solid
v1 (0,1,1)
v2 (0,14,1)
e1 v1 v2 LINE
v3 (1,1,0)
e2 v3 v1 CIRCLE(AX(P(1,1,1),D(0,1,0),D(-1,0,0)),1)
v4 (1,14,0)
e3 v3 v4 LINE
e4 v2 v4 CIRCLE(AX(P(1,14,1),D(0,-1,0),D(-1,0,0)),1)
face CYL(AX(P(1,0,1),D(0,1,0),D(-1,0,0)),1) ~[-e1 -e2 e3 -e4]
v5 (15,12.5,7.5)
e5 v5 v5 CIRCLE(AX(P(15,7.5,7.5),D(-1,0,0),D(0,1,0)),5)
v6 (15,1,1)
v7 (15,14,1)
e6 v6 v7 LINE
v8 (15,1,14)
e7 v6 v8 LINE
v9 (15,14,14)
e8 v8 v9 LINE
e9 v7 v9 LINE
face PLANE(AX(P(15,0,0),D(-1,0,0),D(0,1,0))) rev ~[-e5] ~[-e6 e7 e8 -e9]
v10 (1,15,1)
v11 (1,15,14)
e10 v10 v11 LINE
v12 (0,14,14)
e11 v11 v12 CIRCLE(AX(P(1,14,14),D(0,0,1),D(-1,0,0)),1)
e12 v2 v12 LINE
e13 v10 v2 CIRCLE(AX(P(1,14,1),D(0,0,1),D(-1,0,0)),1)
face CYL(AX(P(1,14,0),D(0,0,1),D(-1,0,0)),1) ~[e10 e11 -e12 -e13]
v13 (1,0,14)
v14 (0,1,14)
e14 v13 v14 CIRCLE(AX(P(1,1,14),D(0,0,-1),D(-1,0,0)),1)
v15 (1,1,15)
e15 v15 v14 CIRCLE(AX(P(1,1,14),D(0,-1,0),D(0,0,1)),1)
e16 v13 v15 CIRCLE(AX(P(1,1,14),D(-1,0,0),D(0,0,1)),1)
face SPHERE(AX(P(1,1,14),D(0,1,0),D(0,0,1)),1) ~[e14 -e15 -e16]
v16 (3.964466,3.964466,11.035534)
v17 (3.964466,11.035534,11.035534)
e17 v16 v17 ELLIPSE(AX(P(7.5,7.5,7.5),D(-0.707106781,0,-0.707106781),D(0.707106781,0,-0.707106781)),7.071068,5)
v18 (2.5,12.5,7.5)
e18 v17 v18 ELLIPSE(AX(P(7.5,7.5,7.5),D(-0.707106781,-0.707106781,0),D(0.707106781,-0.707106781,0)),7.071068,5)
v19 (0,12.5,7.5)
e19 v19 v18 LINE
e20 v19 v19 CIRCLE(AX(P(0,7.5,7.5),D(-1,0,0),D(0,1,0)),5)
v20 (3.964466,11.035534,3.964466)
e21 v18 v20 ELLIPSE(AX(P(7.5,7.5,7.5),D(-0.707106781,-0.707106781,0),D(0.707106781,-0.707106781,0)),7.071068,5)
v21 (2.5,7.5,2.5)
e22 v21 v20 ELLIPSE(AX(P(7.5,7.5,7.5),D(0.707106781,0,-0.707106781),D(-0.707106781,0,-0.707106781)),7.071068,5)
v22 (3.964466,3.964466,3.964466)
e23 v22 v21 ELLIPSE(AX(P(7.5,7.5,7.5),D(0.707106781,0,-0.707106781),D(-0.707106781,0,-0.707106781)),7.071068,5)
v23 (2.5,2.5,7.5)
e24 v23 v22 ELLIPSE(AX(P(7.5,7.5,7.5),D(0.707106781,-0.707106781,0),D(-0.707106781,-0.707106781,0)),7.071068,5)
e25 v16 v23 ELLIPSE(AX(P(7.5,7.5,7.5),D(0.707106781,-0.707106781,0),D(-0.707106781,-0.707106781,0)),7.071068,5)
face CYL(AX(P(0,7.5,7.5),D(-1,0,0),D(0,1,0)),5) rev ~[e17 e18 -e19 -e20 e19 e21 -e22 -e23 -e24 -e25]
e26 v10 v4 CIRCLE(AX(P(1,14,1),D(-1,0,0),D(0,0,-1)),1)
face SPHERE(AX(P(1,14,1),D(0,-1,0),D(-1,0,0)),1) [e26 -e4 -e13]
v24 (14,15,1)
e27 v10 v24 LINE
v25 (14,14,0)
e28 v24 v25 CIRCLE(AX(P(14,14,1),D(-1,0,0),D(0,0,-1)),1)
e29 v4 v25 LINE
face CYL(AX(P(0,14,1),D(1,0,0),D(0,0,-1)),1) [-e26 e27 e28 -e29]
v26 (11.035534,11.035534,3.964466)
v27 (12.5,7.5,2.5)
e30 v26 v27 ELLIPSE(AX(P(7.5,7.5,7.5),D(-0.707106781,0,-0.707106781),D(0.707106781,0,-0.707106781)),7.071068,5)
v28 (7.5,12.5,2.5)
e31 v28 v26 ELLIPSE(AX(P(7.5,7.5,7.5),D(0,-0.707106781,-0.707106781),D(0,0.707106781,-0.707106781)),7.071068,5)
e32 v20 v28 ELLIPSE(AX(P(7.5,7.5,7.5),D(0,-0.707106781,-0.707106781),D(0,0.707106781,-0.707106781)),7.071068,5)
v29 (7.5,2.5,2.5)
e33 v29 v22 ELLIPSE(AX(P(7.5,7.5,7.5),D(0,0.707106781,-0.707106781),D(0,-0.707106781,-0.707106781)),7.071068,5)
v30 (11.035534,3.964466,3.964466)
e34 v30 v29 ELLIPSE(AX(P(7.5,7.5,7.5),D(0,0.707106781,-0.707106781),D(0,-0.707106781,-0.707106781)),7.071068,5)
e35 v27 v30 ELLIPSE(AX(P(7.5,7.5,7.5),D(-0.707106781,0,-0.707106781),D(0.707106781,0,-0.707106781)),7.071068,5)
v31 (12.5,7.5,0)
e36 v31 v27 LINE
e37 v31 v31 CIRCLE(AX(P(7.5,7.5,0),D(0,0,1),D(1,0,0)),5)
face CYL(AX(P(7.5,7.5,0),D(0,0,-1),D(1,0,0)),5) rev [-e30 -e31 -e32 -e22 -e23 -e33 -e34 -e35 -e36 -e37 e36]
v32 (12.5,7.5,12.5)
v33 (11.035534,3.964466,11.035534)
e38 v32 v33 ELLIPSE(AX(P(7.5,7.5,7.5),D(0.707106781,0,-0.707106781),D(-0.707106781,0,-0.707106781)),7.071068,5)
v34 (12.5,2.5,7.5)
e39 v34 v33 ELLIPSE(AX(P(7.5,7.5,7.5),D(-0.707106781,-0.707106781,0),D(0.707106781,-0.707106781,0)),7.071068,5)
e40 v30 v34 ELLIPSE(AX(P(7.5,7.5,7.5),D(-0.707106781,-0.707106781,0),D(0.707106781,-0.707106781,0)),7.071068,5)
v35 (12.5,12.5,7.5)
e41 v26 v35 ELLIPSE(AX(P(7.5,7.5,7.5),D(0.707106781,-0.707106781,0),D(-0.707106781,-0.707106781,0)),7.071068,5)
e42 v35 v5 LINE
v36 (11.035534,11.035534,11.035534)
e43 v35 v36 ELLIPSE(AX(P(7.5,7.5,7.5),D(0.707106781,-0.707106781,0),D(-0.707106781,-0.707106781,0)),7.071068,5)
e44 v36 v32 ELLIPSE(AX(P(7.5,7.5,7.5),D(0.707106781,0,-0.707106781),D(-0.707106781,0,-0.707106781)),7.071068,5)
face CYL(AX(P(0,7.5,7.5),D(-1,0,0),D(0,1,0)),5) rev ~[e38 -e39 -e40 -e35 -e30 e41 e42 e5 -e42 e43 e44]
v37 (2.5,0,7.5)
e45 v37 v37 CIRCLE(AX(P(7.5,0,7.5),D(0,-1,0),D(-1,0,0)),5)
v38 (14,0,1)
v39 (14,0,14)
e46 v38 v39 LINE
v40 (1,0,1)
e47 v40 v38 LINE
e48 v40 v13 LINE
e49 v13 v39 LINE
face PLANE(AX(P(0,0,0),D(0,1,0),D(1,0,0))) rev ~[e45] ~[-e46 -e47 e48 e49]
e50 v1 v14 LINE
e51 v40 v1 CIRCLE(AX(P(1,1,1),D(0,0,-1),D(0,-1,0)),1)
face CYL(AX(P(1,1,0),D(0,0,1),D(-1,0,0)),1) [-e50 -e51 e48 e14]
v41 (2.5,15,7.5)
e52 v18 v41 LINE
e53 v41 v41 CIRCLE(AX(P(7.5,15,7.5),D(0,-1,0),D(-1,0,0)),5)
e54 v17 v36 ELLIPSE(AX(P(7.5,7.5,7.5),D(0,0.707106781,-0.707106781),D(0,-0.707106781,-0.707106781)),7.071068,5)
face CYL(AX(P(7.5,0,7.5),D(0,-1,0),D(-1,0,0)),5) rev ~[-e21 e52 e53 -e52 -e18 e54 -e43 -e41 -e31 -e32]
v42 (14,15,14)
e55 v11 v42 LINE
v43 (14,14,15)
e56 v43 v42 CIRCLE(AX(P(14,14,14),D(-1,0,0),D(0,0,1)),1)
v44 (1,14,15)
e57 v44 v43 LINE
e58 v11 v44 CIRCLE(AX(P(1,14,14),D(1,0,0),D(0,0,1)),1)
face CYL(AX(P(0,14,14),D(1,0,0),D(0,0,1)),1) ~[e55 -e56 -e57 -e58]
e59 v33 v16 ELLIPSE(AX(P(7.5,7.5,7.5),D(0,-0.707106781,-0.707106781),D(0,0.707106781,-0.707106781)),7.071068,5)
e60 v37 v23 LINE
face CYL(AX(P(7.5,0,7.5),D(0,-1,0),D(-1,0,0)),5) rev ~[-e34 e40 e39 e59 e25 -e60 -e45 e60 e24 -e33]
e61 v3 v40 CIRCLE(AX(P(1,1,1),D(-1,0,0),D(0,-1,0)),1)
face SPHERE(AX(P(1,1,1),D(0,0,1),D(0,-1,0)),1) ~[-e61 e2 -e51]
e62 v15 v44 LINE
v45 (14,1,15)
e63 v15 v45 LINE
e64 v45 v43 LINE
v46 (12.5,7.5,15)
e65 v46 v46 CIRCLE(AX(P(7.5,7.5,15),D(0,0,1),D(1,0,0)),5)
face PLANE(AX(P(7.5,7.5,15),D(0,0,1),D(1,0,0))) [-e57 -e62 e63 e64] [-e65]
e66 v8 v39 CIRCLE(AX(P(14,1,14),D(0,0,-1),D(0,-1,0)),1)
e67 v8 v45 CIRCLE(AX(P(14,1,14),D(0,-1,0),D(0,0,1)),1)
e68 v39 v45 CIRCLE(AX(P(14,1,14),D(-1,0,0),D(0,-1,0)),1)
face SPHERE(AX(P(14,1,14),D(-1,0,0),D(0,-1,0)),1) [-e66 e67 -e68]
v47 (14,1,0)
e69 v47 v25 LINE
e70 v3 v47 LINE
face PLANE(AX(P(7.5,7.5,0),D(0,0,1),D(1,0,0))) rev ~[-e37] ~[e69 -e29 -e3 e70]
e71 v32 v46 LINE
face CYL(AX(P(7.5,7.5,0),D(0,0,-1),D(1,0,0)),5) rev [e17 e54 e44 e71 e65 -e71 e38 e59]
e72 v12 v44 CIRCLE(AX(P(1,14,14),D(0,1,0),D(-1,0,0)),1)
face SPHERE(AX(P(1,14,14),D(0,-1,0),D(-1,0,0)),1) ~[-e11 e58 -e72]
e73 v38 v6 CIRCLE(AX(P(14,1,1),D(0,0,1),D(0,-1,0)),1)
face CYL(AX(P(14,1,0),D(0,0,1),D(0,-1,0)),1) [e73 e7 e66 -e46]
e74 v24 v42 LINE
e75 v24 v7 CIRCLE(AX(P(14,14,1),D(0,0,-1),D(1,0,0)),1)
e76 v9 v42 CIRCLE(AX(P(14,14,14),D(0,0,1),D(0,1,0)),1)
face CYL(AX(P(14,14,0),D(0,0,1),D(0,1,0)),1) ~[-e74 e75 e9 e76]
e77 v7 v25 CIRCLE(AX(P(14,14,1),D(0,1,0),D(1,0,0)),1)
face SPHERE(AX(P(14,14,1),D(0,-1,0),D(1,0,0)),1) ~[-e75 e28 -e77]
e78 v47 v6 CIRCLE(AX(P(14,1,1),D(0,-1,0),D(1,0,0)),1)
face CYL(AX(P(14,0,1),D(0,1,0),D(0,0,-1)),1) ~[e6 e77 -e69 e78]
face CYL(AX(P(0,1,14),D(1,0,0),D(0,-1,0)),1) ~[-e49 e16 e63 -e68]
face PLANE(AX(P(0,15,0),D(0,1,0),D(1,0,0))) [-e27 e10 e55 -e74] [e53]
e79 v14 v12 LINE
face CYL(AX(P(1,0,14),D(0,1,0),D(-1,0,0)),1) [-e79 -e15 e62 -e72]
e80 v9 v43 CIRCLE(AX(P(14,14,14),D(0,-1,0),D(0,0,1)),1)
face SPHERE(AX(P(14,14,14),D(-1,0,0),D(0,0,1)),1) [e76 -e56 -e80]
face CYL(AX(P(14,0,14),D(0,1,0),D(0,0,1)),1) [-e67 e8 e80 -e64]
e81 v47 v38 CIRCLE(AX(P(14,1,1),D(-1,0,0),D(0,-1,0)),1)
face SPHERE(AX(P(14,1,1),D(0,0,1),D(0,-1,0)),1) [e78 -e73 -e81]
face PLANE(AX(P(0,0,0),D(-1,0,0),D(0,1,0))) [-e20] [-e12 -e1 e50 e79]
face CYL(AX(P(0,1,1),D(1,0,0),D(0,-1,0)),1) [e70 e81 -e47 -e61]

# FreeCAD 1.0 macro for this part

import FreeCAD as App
import Part
import Sketcher

V = App.Vector


def edges_at(feature, points):
    """Names of the edges that pass closest to the given points."""
    edges = feature.Shape.Edges
    near = lambda p: min(range(len(edges)), key=lambda i: edges[i].distToShape(Part.Vertex(*p))[0])
    return sorted({f"Edge{near(p) + 1}" for p in points})

doc = App.newDocument("Part")
params = doc.addObject("Spreadsheet::Sheet", "Params")
for row, (alias, value) in enumerate([
    ("sketch1_diameter", "10 mm"),
    ("sketch1_width", "15 mm"),
    ("pad1_length", "15 mm"),
    ("sketch2_diameter", "10 mm"),
    ("sketch3_diameter", "10 mm"),
    ("fillet_radius", "1 mm"),
], start=1):
    params.set(f"A{row}", alias)
    params.set(f"B{row}", "=" + value)
    params.setAlias(f"B{row}", alias)

body = doc.addObject("PartDesign::Body", "Body")

sketch1 = doc.addObject("Sketcher::SketchObject", "Sketch")
body.addObject(sketch1)
sketch1.AttachmentSupport = (doc.XY_Plane, [""])
sketch1.MapMode = "FlatFace"
sketch1.addGeometry(Part.LineSegment(V(0, 15, 0), V(0, 0, 0)), False)
sketch1.addGeometry(Part.LineSegment(V(0, 0, 0), V(15, 0, 0)), False)
sketch1.addGeometry(Part.LineSegment(V(15, 0, 0), V(15, 15, 0)), False)
sketch1.addGeometry(Part.LineSegment(V(15, 15, 0), V(0, 15, 0)), False)
sketch1.addGeometry(Part.Circle(V(8, 8, 0), V(0, 0, 1), 5), False)
sketch1.addConstraint(Sketcher.Constraint("Coincident", 0, 2, 1, 1))
sketch1.addConstraint(Sketcher.Constraint("Coincident", 1, 2, 2, 1))
sketch1.addConstraint(Sketcher.Constraint("Coincident", 2, 2, 3, 1))
sketch1.addConstraint(Sketcher.Constraint("Coincident", 3, 2, 0, 1))
sketch1.addConstraint(Sketcher.Constraint("Vertical", 0))
sketch1.addConstraint(Sketcher.Constraint("Horizontal", 1))
sketch1.addConstraint(Sketcher.Constraint("Vertical", 2))
sketch1.addConstraint(Sketcher.Constraint("Horizontal", 3))
sketch1.addConstraint(Sketcher.Constraint("Coincident", 0, 2, -1, 1))
sketch1.addConstraint(Sketcher.Constraint("Equal", 3, 0))
sketch1.addConstraint(Sketcher.Constraint("Diameter", 4, 10.0))
sketch1.addConstraint(Sketcher.Constraint("DistanceX", 1, 1, 1, 2, 15.0))
sketch1.addConstraint(Sketcher.Constraint("DistanceX", -1, 1, 4, 3, 7.5))
sketch1.addConstraint(Sketcher.Constraint("DistanceY", -1, 1, 4, 3, 7.5))
sketch1.setExpression("Constraints[10]", "Params.sketch1_diameter")
sketch1.setExpression("Constraints[11]", "Params.sketch1_width")
pad1 = doc.addObject("PartDesign::Pad", "Pad")
body.addObject(pad1)
pad1.Profile = sketch1
pad1.setExpression("Length", "Params.pad1_length")

sketch2 = doc.addObject("Sketcher::SketchObject", "Sketch001")
body.addObject(sketch2)
sketch2.AttachmentSupport = (doc.XZ_Plane, [""])
sketch2.MapMode = "FlatFace"
sketch2.addGeometry(Part.Circle(V(8, 8, 0), V(0, 0, 1), 5), False)
sketch2.addConstraint(Sketcher.Constraint("Diameter", 0, 10.0))
sketch2.addConstraint(Sketcher.Constraint("DistanceX", -1, 1, 0, 3, 7.5))
sketch2.addConstraint(Sketcher.Constraint("DistanceY", -1, 1, 0, 3, 7.5))
sketch2.setExpression("Constraints[0]", "Params.sketch2_diameter")
pocket1 = doc.addObject("PartDesign::Pocket", "Pocket")
body.addObject(pocket1)
pocket1.Profile = sketch2
pocket1.Type = "ThroughAll"

sketch3 = doc.addObject("Sketcher::SketchObject", "Sketch002")
body.addObject(sketch3)
sketch3.AttachmentSupport = (doc.YZ_Plane, [""])
sketch3.MapMode = "FlatFace"
sketch3.addGeometry(Part.Circle(V(8, 8, 0), V(0, 0, 1), 5), False)
sketch3.addConstraint(Sketcher.Constraint("Diameter", 0, 10.0))
sketch3.addConstraint(Sketcher.Constraint("DistanceX", -1, 1, 0, 3, 7.5))
sketch3.addConstraint(Sketcher.Constraint("DistanceY", -1, 1, 0, 3, 7.5))
sketch3.setExpression("Constraints[0]", "Params.sketch3_diameter")
pocket2 = doc.addObject("PartDesign::Pocket", "Pocket001")
body.addObject(pocket2)
pocket2.Profile = sketch3
pocket2.Type = "ThroughAll"
pocket2.Reversed = True
doc.recompute()

fillet = doc.addObject("PartDesign::Fillet", "Fillet")
body.addObject(fillet)
fillet.Base = (pocket2, edges_at(pocket2, [
    (0, 7.5, 15),
    (7.5, 0, 15),
    (0, 0, 7.5),
    (15, 0, 7.5),
    (7.5, 0, 0),
    (0, 7.5, 0),
    (0, 15, 7.5),
    (7.5, 15, 15),
    (15, 7.5, 15),
    (15, 7.5, 0),
    (15, 15, 7.5),
    (7.5, 15, 0),
]))
fillet.setExpression("Radius", "Params.fillet_radius")

doc.recompute()
